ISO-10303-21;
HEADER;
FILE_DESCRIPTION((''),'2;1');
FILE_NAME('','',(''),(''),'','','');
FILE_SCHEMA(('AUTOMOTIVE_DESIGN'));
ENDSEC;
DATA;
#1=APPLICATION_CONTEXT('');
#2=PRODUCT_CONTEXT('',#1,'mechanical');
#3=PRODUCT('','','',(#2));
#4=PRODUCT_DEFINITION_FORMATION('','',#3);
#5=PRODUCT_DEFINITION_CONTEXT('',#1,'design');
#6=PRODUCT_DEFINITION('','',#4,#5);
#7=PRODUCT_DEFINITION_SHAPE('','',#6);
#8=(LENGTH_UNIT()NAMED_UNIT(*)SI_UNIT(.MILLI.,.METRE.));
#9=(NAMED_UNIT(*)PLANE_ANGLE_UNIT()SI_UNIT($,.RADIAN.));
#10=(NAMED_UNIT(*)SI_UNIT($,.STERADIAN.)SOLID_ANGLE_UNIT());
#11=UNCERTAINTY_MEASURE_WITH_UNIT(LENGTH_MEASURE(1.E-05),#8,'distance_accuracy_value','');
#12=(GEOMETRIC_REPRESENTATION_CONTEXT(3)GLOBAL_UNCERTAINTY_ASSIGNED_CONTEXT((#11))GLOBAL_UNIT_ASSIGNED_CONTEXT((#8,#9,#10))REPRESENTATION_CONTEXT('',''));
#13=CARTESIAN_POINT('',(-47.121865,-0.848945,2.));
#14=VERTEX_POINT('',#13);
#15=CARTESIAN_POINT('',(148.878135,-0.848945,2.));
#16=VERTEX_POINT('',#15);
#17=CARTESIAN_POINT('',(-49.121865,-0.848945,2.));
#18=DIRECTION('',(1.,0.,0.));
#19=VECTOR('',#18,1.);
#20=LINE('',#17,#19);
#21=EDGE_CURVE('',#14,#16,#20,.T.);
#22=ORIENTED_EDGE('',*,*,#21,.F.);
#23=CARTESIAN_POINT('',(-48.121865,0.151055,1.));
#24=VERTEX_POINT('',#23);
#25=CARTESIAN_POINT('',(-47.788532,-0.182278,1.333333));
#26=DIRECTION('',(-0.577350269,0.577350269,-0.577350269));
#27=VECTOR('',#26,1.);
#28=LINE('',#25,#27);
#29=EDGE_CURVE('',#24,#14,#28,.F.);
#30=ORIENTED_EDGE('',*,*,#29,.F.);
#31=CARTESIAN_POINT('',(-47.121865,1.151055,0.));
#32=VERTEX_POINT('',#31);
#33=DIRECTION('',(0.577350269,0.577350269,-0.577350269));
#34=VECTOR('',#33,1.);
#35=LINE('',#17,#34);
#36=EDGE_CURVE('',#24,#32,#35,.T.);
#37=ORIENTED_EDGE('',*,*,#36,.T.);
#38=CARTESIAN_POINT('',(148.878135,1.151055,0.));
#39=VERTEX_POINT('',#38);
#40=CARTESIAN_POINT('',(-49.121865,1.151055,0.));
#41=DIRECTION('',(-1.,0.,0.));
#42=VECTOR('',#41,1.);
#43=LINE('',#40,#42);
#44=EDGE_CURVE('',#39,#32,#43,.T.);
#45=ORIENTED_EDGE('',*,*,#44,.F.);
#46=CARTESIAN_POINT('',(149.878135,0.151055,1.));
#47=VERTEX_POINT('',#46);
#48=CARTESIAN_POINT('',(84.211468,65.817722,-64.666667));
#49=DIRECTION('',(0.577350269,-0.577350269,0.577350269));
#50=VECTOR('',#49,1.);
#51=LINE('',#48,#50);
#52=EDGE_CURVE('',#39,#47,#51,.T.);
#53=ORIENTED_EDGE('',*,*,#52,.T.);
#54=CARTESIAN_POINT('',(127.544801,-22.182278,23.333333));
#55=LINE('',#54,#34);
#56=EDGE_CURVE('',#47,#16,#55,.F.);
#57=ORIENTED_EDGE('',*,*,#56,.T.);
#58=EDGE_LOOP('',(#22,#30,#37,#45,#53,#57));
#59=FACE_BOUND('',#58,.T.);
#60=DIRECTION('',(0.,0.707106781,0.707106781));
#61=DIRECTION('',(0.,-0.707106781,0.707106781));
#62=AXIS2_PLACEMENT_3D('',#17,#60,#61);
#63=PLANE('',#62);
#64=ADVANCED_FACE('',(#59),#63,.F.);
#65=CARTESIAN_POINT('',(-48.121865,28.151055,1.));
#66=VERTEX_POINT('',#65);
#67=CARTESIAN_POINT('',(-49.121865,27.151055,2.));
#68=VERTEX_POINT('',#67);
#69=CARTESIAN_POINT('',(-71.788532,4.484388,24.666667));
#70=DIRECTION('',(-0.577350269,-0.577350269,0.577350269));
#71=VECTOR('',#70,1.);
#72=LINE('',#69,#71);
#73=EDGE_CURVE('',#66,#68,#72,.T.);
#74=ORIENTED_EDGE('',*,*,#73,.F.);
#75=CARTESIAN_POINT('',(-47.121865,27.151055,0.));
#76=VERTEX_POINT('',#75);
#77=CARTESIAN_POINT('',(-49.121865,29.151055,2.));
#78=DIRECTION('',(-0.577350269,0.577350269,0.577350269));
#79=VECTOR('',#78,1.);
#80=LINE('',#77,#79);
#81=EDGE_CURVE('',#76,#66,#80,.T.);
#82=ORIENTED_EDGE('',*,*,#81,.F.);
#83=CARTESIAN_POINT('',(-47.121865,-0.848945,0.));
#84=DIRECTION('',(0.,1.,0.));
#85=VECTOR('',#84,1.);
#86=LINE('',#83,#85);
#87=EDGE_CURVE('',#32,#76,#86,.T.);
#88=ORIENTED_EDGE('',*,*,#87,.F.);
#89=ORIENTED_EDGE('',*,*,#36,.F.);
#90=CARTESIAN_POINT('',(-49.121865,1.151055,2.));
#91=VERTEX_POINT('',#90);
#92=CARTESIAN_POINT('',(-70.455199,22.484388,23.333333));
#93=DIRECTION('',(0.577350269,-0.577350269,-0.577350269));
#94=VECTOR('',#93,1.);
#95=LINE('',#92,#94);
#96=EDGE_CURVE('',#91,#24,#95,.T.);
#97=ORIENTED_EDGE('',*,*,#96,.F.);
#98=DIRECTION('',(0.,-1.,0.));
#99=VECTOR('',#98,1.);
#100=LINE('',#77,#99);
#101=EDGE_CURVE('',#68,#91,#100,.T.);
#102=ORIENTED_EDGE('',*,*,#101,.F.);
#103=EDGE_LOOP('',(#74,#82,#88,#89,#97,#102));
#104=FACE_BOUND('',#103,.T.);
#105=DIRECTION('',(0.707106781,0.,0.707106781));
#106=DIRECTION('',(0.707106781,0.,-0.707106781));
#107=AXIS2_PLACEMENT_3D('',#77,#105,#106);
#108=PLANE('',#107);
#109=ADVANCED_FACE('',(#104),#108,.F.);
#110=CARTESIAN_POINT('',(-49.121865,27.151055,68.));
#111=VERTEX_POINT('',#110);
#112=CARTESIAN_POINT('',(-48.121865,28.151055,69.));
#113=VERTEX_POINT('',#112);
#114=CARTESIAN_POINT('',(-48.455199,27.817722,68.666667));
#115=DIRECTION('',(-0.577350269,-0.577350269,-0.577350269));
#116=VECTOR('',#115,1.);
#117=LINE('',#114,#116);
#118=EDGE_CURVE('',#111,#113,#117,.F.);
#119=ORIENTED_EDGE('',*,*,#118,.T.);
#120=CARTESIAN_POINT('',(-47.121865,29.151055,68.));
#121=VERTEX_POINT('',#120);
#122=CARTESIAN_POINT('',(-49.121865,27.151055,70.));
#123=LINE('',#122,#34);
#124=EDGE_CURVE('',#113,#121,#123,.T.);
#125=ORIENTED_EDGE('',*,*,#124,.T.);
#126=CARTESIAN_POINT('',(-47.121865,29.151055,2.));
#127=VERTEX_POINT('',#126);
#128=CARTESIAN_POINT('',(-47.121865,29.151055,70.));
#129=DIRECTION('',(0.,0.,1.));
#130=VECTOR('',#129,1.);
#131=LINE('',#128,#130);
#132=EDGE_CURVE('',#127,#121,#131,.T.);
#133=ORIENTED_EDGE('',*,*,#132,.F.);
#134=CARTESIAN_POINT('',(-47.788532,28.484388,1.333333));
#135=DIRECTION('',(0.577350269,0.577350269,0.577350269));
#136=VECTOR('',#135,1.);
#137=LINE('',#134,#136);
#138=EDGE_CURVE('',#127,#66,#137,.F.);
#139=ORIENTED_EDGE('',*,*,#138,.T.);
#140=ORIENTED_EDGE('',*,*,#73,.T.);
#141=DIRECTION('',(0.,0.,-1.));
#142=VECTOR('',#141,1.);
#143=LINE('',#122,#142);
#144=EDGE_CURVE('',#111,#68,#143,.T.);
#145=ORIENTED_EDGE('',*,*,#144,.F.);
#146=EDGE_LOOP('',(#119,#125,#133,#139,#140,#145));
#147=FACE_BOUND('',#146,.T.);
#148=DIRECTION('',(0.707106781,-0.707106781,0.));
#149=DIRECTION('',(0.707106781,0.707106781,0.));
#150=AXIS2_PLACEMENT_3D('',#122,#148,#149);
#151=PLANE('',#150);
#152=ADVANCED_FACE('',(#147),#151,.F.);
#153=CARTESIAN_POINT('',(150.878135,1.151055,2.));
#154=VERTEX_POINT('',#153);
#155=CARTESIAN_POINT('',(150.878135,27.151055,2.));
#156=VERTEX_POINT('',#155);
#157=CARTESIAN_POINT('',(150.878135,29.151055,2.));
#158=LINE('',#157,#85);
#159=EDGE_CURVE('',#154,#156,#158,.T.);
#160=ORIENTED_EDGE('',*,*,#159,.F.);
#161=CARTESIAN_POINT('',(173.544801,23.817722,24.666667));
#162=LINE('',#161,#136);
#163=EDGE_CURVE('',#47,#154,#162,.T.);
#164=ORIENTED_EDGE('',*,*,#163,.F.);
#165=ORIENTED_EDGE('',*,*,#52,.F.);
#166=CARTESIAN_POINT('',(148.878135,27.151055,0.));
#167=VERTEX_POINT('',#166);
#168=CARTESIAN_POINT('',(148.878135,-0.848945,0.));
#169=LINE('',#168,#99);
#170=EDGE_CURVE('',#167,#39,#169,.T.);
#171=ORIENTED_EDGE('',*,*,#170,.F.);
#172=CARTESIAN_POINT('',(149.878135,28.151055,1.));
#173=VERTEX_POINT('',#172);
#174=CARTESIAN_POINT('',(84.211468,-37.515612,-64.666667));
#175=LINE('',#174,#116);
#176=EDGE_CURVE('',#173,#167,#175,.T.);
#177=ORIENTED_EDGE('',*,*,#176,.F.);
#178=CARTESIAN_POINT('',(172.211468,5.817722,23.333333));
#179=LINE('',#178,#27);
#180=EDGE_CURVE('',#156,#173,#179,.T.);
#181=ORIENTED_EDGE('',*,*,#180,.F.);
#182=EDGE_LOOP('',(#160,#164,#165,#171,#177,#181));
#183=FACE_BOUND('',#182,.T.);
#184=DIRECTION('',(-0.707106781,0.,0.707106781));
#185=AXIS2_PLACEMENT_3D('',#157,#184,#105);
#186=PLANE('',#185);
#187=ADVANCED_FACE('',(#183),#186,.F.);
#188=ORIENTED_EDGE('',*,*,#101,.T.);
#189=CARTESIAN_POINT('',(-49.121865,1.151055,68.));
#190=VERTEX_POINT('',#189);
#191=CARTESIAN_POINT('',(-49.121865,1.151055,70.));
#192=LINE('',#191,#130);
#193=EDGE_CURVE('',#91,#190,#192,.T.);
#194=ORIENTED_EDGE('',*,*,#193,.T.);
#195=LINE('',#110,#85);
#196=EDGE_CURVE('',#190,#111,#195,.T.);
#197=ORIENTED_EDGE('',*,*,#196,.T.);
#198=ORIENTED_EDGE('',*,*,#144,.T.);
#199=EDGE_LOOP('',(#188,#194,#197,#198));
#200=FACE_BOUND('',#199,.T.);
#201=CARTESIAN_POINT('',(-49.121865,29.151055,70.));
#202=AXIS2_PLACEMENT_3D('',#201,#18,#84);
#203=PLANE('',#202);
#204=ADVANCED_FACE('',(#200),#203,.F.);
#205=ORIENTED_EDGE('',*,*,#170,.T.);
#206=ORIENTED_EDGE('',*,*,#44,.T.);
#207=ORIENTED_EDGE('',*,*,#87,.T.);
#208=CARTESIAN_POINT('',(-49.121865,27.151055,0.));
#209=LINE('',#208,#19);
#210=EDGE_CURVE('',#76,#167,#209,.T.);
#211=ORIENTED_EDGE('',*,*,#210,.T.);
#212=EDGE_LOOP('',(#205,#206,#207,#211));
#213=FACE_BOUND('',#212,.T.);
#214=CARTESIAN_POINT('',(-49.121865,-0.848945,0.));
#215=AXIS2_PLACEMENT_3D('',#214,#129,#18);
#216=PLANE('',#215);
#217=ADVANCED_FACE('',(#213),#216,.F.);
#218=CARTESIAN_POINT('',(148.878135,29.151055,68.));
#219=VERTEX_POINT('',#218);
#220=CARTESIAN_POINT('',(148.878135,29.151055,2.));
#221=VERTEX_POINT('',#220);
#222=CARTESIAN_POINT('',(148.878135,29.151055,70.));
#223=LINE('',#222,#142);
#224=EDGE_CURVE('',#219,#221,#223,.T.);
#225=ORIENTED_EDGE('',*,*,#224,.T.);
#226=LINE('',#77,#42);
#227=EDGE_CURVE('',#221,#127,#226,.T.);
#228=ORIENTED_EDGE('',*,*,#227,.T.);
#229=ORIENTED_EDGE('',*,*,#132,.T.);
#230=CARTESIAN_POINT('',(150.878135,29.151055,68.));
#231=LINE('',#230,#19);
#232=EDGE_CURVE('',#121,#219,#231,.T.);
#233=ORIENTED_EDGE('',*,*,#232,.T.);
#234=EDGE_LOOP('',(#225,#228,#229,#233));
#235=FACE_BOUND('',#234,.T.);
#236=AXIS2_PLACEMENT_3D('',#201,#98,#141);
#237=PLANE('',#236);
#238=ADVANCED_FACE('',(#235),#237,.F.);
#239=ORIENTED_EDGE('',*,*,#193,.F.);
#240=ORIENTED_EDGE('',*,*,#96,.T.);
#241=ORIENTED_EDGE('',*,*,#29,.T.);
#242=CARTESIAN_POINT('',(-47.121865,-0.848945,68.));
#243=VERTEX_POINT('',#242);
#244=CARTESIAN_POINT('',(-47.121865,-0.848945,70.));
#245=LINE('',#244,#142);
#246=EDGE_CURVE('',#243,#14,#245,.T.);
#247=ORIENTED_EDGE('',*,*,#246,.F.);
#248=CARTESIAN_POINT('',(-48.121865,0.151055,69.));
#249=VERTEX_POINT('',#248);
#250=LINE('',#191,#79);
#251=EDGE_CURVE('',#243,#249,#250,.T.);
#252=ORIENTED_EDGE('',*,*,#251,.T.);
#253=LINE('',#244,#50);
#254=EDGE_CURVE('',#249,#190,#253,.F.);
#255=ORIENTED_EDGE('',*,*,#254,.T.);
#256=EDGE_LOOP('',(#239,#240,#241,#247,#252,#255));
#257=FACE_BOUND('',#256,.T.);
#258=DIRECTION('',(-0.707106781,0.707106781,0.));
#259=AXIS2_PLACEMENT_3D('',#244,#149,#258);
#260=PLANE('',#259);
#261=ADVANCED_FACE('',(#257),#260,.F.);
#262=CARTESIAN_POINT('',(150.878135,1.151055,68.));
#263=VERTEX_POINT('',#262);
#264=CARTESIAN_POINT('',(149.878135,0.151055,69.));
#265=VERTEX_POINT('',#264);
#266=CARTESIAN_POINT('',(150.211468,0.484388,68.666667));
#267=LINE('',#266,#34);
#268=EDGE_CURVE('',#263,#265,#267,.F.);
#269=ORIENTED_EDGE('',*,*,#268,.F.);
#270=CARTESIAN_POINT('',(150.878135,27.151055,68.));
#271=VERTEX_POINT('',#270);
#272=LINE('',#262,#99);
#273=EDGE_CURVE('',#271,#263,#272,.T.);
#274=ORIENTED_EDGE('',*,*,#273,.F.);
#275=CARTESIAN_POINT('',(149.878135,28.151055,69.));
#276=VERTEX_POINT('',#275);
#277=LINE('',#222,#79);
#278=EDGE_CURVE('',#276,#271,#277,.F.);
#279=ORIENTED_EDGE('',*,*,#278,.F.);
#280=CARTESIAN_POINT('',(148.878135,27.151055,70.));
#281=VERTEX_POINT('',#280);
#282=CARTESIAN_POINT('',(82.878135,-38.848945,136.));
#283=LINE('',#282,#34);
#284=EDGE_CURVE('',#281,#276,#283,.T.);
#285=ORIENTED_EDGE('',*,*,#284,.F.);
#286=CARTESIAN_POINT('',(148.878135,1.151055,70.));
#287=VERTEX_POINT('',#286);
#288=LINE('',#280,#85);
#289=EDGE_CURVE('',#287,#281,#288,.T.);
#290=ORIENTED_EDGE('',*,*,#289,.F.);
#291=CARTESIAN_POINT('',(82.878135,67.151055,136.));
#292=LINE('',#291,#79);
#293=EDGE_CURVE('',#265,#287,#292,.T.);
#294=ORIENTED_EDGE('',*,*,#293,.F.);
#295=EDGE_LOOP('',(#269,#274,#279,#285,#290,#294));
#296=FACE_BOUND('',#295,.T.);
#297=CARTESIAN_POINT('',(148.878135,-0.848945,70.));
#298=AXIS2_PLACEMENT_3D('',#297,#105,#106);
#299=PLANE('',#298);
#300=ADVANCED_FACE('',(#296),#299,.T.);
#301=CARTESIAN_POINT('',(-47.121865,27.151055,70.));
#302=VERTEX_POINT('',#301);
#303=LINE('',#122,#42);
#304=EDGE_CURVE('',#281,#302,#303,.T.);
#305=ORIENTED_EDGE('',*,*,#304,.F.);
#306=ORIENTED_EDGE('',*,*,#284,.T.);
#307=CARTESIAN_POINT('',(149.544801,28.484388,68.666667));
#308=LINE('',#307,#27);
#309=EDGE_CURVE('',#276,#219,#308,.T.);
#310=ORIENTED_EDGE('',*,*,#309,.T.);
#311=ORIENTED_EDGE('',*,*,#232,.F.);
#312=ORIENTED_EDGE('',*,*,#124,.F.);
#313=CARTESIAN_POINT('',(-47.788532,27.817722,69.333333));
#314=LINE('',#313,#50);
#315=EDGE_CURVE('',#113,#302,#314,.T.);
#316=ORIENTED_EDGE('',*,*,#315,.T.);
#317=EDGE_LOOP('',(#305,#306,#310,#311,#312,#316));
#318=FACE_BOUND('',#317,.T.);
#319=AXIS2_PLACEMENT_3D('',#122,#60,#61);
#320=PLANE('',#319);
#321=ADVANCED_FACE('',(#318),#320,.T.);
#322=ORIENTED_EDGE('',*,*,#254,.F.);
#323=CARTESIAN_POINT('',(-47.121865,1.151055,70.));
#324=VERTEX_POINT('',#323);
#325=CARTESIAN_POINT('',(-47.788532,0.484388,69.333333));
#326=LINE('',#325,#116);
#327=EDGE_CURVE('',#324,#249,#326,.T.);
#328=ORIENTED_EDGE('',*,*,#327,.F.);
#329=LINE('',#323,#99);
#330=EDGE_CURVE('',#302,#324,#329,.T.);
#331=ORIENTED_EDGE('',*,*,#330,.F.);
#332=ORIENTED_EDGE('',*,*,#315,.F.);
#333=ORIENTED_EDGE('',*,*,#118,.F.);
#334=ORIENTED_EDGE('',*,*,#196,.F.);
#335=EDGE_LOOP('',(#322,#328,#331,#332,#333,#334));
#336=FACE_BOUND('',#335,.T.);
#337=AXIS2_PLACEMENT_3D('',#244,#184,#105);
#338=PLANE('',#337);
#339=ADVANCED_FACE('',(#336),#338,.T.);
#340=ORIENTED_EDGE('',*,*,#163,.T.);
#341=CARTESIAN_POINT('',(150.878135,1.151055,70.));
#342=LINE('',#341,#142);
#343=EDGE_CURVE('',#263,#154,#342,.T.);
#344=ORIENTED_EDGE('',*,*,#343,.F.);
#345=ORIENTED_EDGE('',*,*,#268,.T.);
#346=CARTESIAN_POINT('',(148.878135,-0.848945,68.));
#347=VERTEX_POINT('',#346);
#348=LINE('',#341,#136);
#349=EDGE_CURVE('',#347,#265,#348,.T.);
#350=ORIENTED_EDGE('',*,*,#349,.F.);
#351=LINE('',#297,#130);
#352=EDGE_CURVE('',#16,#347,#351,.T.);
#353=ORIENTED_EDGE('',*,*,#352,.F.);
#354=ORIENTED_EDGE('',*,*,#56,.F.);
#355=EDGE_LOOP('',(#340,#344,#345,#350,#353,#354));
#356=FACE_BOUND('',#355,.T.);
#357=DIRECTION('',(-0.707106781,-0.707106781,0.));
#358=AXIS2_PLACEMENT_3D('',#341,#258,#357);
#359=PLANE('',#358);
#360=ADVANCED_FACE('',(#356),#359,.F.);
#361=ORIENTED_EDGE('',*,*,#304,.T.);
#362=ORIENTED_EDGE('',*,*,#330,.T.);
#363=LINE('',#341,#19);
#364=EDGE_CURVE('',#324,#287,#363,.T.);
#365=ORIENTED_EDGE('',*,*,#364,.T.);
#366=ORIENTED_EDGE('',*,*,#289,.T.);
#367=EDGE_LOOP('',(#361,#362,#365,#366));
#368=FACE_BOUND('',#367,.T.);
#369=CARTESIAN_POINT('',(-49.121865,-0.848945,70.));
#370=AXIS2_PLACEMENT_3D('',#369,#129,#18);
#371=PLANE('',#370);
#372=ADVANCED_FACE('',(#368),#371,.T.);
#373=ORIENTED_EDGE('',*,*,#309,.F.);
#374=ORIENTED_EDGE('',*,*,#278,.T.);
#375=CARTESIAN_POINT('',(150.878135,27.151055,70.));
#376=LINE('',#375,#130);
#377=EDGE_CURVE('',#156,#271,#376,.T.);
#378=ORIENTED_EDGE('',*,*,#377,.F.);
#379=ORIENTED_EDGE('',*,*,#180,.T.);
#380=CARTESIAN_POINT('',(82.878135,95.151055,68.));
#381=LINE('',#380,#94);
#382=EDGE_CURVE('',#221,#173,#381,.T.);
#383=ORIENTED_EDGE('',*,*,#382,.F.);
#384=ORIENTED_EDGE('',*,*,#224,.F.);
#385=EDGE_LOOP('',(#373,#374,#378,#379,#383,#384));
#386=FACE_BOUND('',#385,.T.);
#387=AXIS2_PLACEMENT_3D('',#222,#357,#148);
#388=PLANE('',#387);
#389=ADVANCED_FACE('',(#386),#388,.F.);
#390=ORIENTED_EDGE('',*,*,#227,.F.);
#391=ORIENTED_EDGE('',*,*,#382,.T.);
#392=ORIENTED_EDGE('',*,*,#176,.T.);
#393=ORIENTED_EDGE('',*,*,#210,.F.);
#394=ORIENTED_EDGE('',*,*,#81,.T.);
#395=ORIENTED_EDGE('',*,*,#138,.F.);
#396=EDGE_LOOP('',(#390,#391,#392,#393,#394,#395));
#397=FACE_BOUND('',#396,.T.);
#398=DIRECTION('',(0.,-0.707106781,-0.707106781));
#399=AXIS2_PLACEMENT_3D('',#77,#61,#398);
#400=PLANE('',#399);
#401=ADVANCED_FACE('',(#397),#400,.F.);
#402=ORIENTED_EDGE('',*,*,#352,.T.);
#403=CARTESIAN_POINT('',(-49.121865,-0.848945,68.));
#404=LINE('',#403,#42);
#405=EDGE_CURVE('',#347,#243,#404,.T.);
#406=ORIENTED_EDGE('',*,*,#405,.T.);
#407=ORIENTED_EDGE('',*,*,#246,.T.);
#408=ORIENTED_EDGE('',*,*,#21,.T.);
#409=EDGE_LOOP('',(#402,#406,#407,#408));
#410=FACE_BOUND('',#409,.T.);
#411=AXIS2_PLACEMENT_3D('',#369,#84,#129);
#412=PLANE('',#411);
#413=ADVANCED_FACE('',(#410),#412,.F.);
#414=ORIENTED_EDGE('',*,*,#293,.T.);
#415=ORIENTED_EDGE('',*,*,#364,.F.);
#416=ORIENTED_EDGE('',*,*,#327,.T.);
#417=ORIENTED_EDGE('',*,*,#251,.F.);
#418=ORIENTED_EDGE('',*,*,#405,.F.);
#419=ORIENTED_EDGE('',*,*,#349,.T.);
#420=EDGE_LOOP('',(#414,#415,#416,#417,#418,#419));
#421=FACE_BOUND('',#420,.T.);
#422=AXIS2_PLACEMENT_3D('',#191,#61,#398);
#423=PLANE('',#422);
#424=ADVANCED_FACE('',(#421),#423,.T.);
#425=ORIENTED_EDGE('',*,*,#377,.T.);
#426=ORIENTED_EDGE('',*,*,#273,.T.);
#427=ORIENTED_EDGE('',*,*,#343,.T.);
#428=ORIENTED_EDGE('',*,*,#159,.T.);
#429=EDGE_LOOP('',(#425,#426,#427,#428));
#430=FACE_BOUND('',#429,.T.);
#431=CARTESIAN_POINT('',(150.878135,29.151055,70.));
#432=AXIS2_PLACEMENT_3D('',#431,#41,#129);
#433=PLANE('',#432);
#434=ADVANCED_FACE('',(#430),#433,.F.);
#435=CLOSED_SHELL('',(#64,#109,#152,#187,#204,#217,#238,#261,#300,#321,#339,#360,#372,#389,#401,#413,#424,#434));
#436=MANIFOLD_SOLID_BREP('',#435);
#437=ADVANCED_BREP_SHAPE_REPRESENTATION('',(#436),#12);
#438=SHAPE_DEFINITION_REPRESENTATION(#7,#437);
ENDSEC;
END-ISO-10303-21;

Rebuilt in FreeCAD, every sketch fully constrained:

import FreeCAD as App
import Part
import Sketcher
from FreeCAD import Vector


def edges_at(feature, points):
    """Names of the edges that pass closest to the given points."""
    edges = feature.Shape.Edges
    near = lambda p: min(range(len(edges)), key=lambda i: edges[i].distToShape(Part.Vertex(*p))[0])
    return sorted({f"Edge{near(p) + 1}" for p in points})

doc = App.newDocument("Part")
params = doc.addObject("Spreadsheet::Sheet", "Params")
for row, (alias, value) in enumerate([
    ("sketch1_width", "200 mm"),
    ("sketch1_height", "30 mm"),
    ("pad1_length", "70 mm"),
    ("chamfer_size", "2 mm"),
    ("chamfer2_size", "2 mm"),
    ("chamfer3_size", "2 mm"),
], start=1):
    params.set(f"A{row}", alias)
    params.set(f"B{row}", "=" + value)
    params.setAlias(f"B{row}", alias)

body = doc.addObject("PartDesign::Body", "Body")

sketch1 = body.newObject("Sketcher::SketchObject", "Sketch")
sketch1.AttachmentSupport = (doc.getObject("XY_Plane"), [""])
sketch1.MapMode = "FlatFace"
sketch1.addGeometry(Part.LineSegment(Vector(-49, 29, 0), Vector(-49, -1, 0)), False)
sketch1.addGeometry(Part.LineSegment(Vector(-49, -1, 0), Vector(151, -1, 0)), False)
sketch1.addGeometry(Part.LineSegment(Vector(151, -1, 0), Vector(151, 29, 0)), False)
sketch1.addGeometry(Part.LineSegment(Vector(151, 29, 0), Vector(-49, 29, 0)), False)
sketch1.addConstraint(Sketcher.Constraint("Coincident", 0, 2, 1, 1))
sketch1.addConstraint(Sketcher.Constraint("Coincident", 1, 2, 2, 1))
sketch1.addConstraint(Sketcher.Constraint("Coincident", 2, 2, 3, 1))
sketch1.addConstraint(Sketcher.Constraint("Coincident", 3, 2, 0, 1))
sketch1.addConstraint(Sketcher.Constraint("Vertical", 0))
sketch1.addConstraint(Sketcher.Constraint("Horizontal", 1))
sketch1.addConstraint(Sketcher.Constraint("Vertical", 2))
sketch1.addConstraint(Sketcher.Constraint("Horizontal", 3))
sketch1.addConstraint(Sketcher.Constraint("DistanceX", 1, 1, 1, 2, 200.0))
sketch1.addConstraint(Sketcher.Constraint("DistanceY", 0, 2, 0, 1, 30.0))
sketch1.addConstraint(Sketcher.Constraint("DistanceX", 0, 2, -1, 1, 49.121865))
sketch1.addConstraint(Sketcher.Constraint("DistanceY", 0, 2, -1, 1, 0.848945))
sketch1.setExpression("Constraints[8]", "Params.sketch1_width")
sketch1.setExpression("Constraints[9]", "Params.sketch1_height")
pad1 = body.newObject("PartDesign::Pad", "Pad")
pad1.Profile = sketch1
pad1.setExpression("Length", "Params.pad1_length")
doc.recompute()

chamfer = body.newObject("PartDesign::Chamfer", "Chamfer")
chamfer.Base = (pad1, edges_at(pad1, [
    (50.878, -0.849, 0),
    (50.878, -0.849, 70),
    (150.878, -0.849, 35),
    (-49.122, -0.849, 35),
]))
chamfer.setExpression("Size", "Params.chamfer_size")
doc.recompute()

chamfer2 = body.newObject("PartDesign::Chamfer", "Chamfer001")
chamfer2.Base = (chamfer, edges_at(chamfer, [
    (50.878, 29.151, 70),
    (50.878, 29.151, 0),
    (-49.122, 29.151, 35),
    (150.878, 29.151, 35),
]))
chamfer2.setExpression("Size", "Params.chamfer2_size")
doc.recompute()

chamfer3 = body.newObject("PartDesign::Chamfer", "Chamfer002")
chamfer3.Base = (chamfer2, edges_at(chamfer2, [
    (150.878, 14.151, 0),
    (150.878, 14.151, 70),
    (-49.122, 14.151, 0),
    (-49.122, 14.151, 70),
]))
chamfer3.setExpression("Size", "Params.chamfer3_size")

doc.recompute()
